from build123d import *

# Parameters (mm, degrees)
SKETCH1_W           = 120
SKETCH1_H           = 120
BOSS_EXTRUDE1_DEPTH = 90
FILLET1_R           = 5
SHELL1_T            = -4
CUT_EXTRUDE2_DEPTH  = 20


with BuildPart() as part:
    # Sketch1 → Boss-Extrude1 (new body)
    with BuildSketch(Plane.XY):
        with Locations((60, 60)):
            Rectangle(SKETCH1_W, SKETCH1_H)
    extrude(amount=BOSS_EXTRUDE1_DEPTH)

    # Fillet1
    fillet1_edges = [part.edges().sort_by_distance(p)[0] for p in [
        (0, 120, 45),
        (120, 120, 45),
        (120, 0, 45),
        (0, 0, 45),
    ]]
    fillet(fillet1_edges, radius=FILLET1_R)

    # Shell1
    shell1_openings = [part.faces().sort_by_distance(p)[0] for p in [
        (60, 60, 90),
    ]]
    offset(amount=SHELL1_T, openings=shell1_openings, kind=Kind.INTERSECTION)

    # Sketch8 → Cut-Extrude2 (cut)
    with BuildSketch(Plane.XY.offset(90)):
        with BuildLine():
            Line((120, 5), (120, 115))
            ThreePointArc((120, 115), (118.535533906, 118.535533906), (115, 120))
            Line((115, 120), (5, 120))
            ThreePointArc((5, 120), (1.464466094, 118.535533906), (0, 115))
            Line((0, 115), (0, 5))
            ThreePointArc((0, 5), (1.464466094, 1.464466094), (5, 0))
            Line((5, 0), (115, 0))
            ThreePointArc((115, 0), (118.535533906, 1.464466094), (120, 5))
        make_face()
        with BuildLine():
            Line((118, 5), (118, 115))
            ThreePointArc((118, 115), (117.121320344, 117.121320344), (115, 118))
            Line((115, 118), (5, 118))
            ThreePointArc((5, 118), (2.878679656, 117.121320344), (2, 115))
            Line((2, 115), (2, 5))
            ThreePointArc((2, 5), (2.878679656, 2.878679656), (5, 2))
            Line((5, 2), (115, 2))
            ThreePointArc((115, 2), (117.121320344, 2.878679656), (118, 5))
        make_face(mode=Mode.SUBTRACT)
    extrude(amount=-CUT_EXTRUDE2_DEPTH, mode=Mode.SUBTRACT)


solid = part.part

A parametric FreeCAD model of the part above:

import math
import FreeCAD as App
import Part
import Sketcher

V = App.Vector


def edges_at(feature, points):
    """Names of the edges that pass closest to the given points."""
    edges = feature.Shape.Edges
    near = lambda p: min(range(len(edges)), key=lambda i: edges[i].distToShape(Part.Vertex(*p))[0])
    return sorted({f"Edge{near(p) + 1}" for p in points})


def faces_at(feature, points):
    """Names of the faces that lie closest to the given points."""
    faces = feature.Shape.Faces
    near = lambda p: min(range(len(faces)), key=lambda i: faces[i].distToShape(Part.Vertex(*p))[0])
    return sorted({f"Face{near(p) + 1}" for p in points})


def add_polygon(sketch, points):
    """Adds a closed chain of lines whose ends are joined by coincident constraints."""
    first, n = sketch.GeometryCount, len(points)
    for a, b in zip(points, points[1:] + points[:1]):
        sketch.addGeometry(Part.LineSegment(App.Vector(*a, 0), App.Vector(*b, 0)), False)
    for i in range(n):
        sketch.addConstraint(Sketcher.Constraint("Coincident", first + i, 2, first + (i + 1) % n, 1))

doc = App.newDocument("Part")
body = doc.addObject("PartDesign::Body", "Body")

# Sketch on XY plane
sketch1 = body.newObject("Sketcher::SketchObject", "Sketch")
sketch1.AttachmentSupport = (doc.getObject("XY_Plane"), [""])
sketch1.MapMode = "FlatFace"
add_polygon(sketch1, [(0, 120), (0, 0), (120, 0), (120, 120)])  # lines 0-3
sketch1.addConstraint([
    Sketcher.Constraint("Vertical", 0),
    Sketcher.Constraint("Horizontal", 1),
    Sketcher.Constraint("Vertical", 2),
    Sketcher.Constraint("Horizontal", 3),
    Sketcher.Constraint("Coincident", 0, 2, -1, 1),
    Sketcher.Constraint("Equal", 3, 0),
    Sketcher.Constraint("DistanceX", 1, 1, 1, 2, 120.0),
])
pad1 = body.newObject("PartDesign::Pad", "Pad")
pad1.Profile = sketch1
pad1.Length = 90
doc.recompute()

fillet = body.newObject("PartDesign::Fillet", "Fillet")
fillet.Base = (pad1, edges_at(pad1, [
    (0, 120, 45),
    (120, 120, 45),
    (120, 0, 45),
    (0, 0, 45),
]))
fillet.Radius = 5
doc.recompute()

thickness = body.newObject("PartDesign::Thickness", "Thickness")
thickness.Base = (fillet, faces_at(fillet, [(60, 60, 90)]))
thickness.Value = 4
thickness.Reversed = True
thickness.Join = "Intersection"

# Sketch on XY plane
sketch2 = body.newObject("Sketcher::SketchObject", "Sketch001")
sketch2.AttachmentSupport = (doc.getObject("XY_Plane"), [""])
sketch2.MapMode = "FlatFace"
sketch2.AttachmentOffset = App.Placement(V(0, 0, 90), App.Rotation())
sketch2.addGeometry([
    Part.LineSegment(V(120, 5, 0), V(120, 115, 0)),  # 0
    Part.ArcOfCircle(Part.Circle(V(115, 115, 0), V(0, 0, 1), 5), math.radians(0), math.radians(90)),  # 1
    Part.LineSegment(V(115, 120, 0), V(5, 120, 0)),  # 2
    Part.ArcOfCircle(Part.Circle(V(5, 115, 0), V(0, 0, 1), 5), math.radians(90), math.radians(180)),  # 3
    Part.LineSegment(V(0, 115, 0), V(0, 5, 0)),  # 4
    Part.ArcOfCircle(Part.Circle(V(5, 5, 0), V(0, 0, 1), 5), math.radians(180), math.radians(270)),  # 5
    Part.LineSegment(V(5, 0, 0), V(115, 0, 0)),  # 6
    Part.ArcOfCircle(Part.Circle(V(115, 5, 0), V(0, 0, 1), 5), math.radians(-90), math.radians(0)),  # 7
    Part.LineSegment(V(118, 115, 0), V(118, 5, 0)),  # 8
    Part.ArcOfCircle(Part.Circle(V(115, 5, 0), V(0, 0, 1), 3), math.radians(-90), math.radians(0)),  # 9
    Part.LineSegment(V(115, 2, 0), V(5, 2, 0)),  # 10
    Part.ArcOfCircle(Part.Circle(V(5, 5, 0), V(0, 0, 1), 3), math.radians(180), math.radians(270)),  # 11
    Part.LineSegment(V(2, 5, 0), V(2, 115, 0)),  # 12
    Part.ArcOfCircle(Part.Circle(V(5, 115, 0), V(0, 0, 1), 3), math.radians(90), math.radians(180)),  # 13
    Part.LineSegment(V(5, 118, 0), V(115, 118, 0)),  # 14
    Part.ArcOfCircle(Part.Circle(V(115, 115, 0), V(0, 0, 1), 3), math.radians(0), math.radians(90)),  # 15
], False)
sketch2.addConstraint([
    Sketcher.Constraint("Tangent", 0, 2, 1, 1),
    Sketcher.Constraint("Tangent", 1, 2, 2, 1),
    Sketcher.Constraint("Tangent", 2, 2, 3, 1),
    Sketcher.Constraint("Tangent", 3, 2, 4, 1),
    Sketcher.Constraint("Tangent", 4, 2, 5, 1),
    Sketcher.Constraint("Tangent", 5, 2, 6, 1),
    Sketcher.Constraint("Tangent", 6, 2, 7, 1),
    Sketcher.Constraint("Tangent", 7, 2, 0, 1),
    Sketcher.Constraint("Tangent", 8, 2, 9, 2),
    Sketcher.Constraint("Tangent", 9, 1, 10, 1),
    Sketcher.Constraint("Tangent", 10, 2, 11, 2),
    Sketcher.Constraint("Tangent", 11, 1, 12, 1),
    Sketcher.Constraint("Tangent", 12, 2, 13, 2),
    Sketcher.Constraint("Tangent", 13, 1, 14, 1),
    Sketcher.Constraint("Tangent", 14, 2, 15, 2),
    Sketcher.Constraint("Tangent", 15, 1, 8, 1),
    Sketcher.Constraint("Vertical", 0),
    Sketcher.Constraint("Horizontal", 2),
    Sketcher.Constraint("Vertical", 4),
    Sketcher.Constraint("Horizontal", 6),
    Sketcher.Constraint("Vertical", 8),
    Sketcher.Constraint("Horizontal", 10),
    Sketcher.Constraint("Vertical", 12),
    Sketcher.Constraint("Horizontal", 14),
    Sketcher.Constraint("Coincident", 9, 3, 7, 3),
    Sketcher.Constraint("Coincident", 11, 3, 5, 3),
    Sketcher.Constraint("Coincident", 13, 3, 3, 3),
    Sketcher.Constraint("Equal", 1, 3),
    Sketcher.Constraint("Equal", 3, 5),
    Sketcher.Constraint("Equal", 5, 7),
    Sketcher.Constraint("Equal", 13, 15),
    Sketcher.Constraint("PointOnObject", 3, 2, -2),
    Sketcher.Constraint("PointOnObject", 5, 2, -1),
    Sketcher.Constraint("Equal", 14, 0),
    Sketcher.Constraint("Radius", 1, 5.0),
    Sketcher.Constraint("Radius", 9, 3.0),
    Sketcher.Constraint("DistanceX", 2, 2, 2, 1, 110.0),
])
pocket1 = body.newObject("PartDesign::Pocket", "Pocket")
pocket1.Profile = sketch2
pocket1.Length = 20

doc.recompute()
